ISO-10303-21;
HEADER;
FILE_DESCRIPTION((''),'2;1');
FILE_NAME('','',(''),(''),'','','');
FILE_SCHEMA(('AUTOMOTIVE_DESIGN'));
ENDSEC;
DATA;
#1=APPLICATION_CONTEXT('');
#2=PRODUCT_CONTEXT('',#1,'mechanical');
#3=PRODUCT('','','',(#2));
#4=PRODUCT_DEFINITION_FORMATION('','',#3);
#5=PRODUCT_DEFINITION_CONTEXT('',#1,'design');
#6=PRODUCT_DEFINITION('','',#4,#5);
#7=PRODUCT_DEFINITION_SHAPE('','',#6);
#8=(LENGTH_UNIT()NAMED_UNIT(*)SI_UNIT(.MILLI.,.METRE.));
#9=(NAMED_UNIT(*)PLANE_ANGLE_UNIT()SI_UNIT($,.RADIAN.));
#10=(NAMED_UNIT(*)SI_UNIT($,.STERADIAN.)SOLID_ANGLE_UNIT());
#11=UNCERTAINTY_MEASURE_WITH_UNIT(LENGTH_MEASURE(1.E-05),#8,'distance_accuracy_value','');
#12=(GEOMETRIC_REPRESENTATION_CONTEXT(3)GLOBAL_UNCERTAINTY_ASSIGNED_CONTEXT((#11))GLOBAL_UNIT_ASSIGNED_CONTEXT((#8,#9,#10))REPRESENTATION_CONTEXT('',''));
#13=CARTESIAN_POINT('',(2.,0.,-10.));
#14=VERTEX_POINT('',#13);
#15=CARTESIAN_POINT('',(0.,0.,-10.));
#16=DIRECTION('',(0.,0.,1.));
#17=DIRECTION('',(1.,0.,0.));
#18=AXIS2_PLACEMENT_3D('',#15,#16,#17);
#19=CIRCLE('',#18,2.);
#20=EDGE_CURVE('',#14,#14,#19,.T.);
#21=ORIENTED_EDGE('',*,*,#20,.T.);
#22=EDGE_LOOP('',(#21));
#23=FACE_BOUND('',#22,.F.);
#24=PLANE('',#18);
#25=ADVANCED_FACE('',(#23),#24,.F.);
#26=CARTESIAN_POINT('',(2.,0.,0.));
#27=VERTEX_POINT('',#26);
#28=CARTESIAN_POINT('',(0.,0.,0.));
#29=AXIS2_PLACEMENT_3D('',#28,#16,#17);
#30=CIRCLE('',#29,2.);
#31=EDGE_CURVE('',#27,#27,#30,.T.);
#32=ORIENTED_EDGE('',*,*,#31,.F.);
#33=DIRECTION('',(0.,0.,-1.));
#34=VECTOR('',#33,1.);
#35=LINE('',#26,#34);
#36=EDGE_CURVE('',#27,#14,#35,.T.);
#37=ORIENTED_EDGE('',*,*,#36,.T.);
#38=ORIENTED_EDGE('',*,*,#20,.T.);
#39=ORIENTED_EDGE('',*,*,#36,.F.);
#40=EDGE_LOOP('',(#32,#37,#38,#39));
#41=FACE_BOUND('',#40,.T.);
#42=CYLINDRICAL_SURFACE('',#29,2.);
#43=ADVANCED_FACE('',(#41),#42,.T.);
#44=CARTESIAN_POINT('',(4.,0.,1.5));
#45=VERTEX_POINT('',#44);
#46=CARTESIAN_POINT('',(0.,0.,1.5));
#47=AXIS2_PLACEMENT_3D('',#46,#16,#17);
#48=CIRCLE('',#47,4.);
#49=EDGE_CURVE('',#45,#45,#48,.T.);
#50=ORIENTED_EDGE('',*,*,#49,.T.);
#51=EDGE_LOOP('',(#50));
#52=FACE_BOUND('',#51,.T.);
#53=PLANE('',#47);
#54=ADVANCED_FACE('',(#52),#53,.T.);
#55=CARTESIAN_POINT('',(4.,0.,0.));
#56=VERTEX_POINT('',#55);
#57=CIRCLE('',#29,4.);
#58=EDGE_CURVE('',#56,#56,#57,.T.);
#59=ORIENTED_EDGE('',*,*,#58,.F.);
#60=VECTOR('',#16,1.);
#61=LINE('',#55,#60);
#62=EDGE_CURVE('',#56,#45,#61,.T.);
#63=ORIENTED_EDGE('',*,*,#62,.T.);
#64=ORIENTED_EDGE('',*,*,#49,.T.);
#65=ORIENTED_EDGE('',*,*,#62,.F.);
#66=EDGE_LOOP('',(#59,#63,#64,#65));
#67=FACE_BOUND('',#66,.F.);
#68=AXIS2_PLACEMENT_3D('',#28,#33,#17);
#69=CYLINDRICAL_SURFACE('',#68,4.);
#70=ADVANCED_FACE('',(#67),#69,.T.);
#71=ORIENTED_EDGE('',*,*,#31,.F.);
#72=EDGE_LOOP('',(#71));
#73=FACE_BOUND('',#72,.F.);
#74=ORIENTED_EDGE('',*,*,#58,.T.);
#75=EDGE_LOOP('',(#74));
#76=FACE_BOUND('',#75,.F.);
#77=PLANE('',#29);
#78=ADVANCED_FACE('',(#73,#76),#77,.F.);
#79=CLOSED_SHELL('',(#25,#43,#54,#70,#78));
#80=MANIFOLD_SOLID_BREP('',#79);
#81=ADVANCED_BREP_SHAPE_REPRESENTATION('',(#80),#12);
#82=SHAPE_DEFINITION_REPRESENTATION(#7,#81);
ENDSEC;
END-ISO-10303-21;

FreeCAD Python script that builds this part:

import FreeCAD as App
import Part
import Sketcher

V = App.Vector

doc = App.newDocument("Part")
body = doc.addObject("PartDesign::Body", "Body")

# Sketch on XY plane
sketch1 = body.newObject("Sketcher::SketchObject", "Sketch")
sketch1.AttachmentSupport = (doc.getObject("XY_Plane"), [""])
sketch1.MapMode = "FlatFace"
sketch1.addGeometry(Part.Circle(V(0, 0, 0), V(0, 0, 1), 4), False)
sketch1.addConstraint([
    Sketcher.Constraint("Coincident", 0, 3, -1, 1),
    Sketcher.Constraint("Diameter", 0, 8.0),
])
pad1 = body.newObject("PartDesign::Pad", "Pad")
pad1.Profile = sketch1
pad1.Length = 1.5

# Sketch on XY plane
sketch2 = body.newObject("Sketcher::SketchObject", "Sketch001")
sketch2.AttachmentSupport = (doc.getObject("XY_Plane"), [""])
sketch2.MapMode = "FlatFace"
sketch2.addGeometry(Part.Circle(V(0, 0, 0), V(0, 0, 1), 2), False)
sketch2.addConstraint([
    Sketcher.Constraint("Coincident", 0, 3, -1, 1),
    Sketcher.Constraint("Diameter", 0, 4.0),
])
pad2 = body.newObject("PartDesign::Pad", "Pad001")
pad2.Profile = sketch2
pad2.Length = 10
pad2.Reversed = True

doc.recompute()
